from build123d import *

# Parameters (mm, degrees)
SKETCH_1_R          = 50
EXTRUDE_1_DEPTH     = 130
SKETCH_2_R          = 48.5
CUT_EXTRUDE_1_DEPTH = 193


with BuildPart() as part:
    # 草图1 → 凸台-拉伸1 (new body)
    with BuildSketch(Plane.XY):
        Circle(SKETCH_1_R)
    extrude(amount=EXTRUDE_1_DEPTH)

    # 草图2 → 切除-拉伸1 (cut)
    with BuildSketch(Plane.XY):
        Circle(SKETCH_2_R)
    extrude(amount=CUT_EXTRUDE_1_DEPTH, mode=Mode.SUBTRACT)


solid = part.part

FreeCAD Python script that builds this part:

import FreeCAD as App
import Part
import Sketcher

V = App.Vector

doc = App.newDocument("Part")
params = doc.addObject("Spreadsheet::Sheet", "Params")
for row, (alias, value) in enumerate([
    ("sketch1_diameter", "100 mm"),
    ("pad1_length", "130 mm"),
    ("sketch2_diameter", "97 mm"),
    ("pocket1_length", "193 mm"),
], start=1):
    params.set(f"A{row}", alias)
    params.set(f"B{row}", "=" + value)
    params.setAlias(f"B{row}", alias)

body = doc.addObject("PartDesign::Body", "Body")

# Sketch on XY plane
sketch1 = body.newObject("Sketcher::SketchObject", "Sketch")
sketch1.AttachmentSupport = (doc.getObject("XY_Plane"), [""])
sketch1.MapMode = "FlatFace"
sketch1.addGeometry(Part.Circle(V(0, 0, 0), V(0, 0, 1), 50), False)
sketch1.addConstraint([
    Sketcher.Constraint("Coincident", 0, 3, -1, 1),
    Sketcher.Constraint("Diameter", 0, 100.0),
])
sketch1.setExpression("Constraints[1]", "Params.sketch1_diameter")
pad1 = body.newObject("PartDesign::Pad", "Pad")
pad1.Profile = sketch1
pad1.setExpression("Length", "Params.pad1_length")

# Sketch on XY plane
sketch2 = body.newObject("Sketcher::SketchObject", "Sketch001")
sketch2.AttachmentSupport = (doc.getObject("XY_Plane"), [""])
sketch2.MapMode = "FlatFace"
sketch2.addGeometry(Part.Circle(V(0, 0, 0), V(0, 0, 1), 48), False)
sketch2.addConstraint([
    Sketcher.Constraint("Coincident", 0, 3, -1, 1),
    Sketcher.Constraint("Diameter", 0, 97.0),
])
sketch2.setExpression("Constraints[1]", "Params.sketch2_diameter")
pocket1 = body.newObject("PartDesign::Pocket", "Pocket")
pocket1.Profile = sketch2
pocket1.setExpression("Length", "Params.pocket1_length")
pocket1.Reversed = True

doc.recompute()
